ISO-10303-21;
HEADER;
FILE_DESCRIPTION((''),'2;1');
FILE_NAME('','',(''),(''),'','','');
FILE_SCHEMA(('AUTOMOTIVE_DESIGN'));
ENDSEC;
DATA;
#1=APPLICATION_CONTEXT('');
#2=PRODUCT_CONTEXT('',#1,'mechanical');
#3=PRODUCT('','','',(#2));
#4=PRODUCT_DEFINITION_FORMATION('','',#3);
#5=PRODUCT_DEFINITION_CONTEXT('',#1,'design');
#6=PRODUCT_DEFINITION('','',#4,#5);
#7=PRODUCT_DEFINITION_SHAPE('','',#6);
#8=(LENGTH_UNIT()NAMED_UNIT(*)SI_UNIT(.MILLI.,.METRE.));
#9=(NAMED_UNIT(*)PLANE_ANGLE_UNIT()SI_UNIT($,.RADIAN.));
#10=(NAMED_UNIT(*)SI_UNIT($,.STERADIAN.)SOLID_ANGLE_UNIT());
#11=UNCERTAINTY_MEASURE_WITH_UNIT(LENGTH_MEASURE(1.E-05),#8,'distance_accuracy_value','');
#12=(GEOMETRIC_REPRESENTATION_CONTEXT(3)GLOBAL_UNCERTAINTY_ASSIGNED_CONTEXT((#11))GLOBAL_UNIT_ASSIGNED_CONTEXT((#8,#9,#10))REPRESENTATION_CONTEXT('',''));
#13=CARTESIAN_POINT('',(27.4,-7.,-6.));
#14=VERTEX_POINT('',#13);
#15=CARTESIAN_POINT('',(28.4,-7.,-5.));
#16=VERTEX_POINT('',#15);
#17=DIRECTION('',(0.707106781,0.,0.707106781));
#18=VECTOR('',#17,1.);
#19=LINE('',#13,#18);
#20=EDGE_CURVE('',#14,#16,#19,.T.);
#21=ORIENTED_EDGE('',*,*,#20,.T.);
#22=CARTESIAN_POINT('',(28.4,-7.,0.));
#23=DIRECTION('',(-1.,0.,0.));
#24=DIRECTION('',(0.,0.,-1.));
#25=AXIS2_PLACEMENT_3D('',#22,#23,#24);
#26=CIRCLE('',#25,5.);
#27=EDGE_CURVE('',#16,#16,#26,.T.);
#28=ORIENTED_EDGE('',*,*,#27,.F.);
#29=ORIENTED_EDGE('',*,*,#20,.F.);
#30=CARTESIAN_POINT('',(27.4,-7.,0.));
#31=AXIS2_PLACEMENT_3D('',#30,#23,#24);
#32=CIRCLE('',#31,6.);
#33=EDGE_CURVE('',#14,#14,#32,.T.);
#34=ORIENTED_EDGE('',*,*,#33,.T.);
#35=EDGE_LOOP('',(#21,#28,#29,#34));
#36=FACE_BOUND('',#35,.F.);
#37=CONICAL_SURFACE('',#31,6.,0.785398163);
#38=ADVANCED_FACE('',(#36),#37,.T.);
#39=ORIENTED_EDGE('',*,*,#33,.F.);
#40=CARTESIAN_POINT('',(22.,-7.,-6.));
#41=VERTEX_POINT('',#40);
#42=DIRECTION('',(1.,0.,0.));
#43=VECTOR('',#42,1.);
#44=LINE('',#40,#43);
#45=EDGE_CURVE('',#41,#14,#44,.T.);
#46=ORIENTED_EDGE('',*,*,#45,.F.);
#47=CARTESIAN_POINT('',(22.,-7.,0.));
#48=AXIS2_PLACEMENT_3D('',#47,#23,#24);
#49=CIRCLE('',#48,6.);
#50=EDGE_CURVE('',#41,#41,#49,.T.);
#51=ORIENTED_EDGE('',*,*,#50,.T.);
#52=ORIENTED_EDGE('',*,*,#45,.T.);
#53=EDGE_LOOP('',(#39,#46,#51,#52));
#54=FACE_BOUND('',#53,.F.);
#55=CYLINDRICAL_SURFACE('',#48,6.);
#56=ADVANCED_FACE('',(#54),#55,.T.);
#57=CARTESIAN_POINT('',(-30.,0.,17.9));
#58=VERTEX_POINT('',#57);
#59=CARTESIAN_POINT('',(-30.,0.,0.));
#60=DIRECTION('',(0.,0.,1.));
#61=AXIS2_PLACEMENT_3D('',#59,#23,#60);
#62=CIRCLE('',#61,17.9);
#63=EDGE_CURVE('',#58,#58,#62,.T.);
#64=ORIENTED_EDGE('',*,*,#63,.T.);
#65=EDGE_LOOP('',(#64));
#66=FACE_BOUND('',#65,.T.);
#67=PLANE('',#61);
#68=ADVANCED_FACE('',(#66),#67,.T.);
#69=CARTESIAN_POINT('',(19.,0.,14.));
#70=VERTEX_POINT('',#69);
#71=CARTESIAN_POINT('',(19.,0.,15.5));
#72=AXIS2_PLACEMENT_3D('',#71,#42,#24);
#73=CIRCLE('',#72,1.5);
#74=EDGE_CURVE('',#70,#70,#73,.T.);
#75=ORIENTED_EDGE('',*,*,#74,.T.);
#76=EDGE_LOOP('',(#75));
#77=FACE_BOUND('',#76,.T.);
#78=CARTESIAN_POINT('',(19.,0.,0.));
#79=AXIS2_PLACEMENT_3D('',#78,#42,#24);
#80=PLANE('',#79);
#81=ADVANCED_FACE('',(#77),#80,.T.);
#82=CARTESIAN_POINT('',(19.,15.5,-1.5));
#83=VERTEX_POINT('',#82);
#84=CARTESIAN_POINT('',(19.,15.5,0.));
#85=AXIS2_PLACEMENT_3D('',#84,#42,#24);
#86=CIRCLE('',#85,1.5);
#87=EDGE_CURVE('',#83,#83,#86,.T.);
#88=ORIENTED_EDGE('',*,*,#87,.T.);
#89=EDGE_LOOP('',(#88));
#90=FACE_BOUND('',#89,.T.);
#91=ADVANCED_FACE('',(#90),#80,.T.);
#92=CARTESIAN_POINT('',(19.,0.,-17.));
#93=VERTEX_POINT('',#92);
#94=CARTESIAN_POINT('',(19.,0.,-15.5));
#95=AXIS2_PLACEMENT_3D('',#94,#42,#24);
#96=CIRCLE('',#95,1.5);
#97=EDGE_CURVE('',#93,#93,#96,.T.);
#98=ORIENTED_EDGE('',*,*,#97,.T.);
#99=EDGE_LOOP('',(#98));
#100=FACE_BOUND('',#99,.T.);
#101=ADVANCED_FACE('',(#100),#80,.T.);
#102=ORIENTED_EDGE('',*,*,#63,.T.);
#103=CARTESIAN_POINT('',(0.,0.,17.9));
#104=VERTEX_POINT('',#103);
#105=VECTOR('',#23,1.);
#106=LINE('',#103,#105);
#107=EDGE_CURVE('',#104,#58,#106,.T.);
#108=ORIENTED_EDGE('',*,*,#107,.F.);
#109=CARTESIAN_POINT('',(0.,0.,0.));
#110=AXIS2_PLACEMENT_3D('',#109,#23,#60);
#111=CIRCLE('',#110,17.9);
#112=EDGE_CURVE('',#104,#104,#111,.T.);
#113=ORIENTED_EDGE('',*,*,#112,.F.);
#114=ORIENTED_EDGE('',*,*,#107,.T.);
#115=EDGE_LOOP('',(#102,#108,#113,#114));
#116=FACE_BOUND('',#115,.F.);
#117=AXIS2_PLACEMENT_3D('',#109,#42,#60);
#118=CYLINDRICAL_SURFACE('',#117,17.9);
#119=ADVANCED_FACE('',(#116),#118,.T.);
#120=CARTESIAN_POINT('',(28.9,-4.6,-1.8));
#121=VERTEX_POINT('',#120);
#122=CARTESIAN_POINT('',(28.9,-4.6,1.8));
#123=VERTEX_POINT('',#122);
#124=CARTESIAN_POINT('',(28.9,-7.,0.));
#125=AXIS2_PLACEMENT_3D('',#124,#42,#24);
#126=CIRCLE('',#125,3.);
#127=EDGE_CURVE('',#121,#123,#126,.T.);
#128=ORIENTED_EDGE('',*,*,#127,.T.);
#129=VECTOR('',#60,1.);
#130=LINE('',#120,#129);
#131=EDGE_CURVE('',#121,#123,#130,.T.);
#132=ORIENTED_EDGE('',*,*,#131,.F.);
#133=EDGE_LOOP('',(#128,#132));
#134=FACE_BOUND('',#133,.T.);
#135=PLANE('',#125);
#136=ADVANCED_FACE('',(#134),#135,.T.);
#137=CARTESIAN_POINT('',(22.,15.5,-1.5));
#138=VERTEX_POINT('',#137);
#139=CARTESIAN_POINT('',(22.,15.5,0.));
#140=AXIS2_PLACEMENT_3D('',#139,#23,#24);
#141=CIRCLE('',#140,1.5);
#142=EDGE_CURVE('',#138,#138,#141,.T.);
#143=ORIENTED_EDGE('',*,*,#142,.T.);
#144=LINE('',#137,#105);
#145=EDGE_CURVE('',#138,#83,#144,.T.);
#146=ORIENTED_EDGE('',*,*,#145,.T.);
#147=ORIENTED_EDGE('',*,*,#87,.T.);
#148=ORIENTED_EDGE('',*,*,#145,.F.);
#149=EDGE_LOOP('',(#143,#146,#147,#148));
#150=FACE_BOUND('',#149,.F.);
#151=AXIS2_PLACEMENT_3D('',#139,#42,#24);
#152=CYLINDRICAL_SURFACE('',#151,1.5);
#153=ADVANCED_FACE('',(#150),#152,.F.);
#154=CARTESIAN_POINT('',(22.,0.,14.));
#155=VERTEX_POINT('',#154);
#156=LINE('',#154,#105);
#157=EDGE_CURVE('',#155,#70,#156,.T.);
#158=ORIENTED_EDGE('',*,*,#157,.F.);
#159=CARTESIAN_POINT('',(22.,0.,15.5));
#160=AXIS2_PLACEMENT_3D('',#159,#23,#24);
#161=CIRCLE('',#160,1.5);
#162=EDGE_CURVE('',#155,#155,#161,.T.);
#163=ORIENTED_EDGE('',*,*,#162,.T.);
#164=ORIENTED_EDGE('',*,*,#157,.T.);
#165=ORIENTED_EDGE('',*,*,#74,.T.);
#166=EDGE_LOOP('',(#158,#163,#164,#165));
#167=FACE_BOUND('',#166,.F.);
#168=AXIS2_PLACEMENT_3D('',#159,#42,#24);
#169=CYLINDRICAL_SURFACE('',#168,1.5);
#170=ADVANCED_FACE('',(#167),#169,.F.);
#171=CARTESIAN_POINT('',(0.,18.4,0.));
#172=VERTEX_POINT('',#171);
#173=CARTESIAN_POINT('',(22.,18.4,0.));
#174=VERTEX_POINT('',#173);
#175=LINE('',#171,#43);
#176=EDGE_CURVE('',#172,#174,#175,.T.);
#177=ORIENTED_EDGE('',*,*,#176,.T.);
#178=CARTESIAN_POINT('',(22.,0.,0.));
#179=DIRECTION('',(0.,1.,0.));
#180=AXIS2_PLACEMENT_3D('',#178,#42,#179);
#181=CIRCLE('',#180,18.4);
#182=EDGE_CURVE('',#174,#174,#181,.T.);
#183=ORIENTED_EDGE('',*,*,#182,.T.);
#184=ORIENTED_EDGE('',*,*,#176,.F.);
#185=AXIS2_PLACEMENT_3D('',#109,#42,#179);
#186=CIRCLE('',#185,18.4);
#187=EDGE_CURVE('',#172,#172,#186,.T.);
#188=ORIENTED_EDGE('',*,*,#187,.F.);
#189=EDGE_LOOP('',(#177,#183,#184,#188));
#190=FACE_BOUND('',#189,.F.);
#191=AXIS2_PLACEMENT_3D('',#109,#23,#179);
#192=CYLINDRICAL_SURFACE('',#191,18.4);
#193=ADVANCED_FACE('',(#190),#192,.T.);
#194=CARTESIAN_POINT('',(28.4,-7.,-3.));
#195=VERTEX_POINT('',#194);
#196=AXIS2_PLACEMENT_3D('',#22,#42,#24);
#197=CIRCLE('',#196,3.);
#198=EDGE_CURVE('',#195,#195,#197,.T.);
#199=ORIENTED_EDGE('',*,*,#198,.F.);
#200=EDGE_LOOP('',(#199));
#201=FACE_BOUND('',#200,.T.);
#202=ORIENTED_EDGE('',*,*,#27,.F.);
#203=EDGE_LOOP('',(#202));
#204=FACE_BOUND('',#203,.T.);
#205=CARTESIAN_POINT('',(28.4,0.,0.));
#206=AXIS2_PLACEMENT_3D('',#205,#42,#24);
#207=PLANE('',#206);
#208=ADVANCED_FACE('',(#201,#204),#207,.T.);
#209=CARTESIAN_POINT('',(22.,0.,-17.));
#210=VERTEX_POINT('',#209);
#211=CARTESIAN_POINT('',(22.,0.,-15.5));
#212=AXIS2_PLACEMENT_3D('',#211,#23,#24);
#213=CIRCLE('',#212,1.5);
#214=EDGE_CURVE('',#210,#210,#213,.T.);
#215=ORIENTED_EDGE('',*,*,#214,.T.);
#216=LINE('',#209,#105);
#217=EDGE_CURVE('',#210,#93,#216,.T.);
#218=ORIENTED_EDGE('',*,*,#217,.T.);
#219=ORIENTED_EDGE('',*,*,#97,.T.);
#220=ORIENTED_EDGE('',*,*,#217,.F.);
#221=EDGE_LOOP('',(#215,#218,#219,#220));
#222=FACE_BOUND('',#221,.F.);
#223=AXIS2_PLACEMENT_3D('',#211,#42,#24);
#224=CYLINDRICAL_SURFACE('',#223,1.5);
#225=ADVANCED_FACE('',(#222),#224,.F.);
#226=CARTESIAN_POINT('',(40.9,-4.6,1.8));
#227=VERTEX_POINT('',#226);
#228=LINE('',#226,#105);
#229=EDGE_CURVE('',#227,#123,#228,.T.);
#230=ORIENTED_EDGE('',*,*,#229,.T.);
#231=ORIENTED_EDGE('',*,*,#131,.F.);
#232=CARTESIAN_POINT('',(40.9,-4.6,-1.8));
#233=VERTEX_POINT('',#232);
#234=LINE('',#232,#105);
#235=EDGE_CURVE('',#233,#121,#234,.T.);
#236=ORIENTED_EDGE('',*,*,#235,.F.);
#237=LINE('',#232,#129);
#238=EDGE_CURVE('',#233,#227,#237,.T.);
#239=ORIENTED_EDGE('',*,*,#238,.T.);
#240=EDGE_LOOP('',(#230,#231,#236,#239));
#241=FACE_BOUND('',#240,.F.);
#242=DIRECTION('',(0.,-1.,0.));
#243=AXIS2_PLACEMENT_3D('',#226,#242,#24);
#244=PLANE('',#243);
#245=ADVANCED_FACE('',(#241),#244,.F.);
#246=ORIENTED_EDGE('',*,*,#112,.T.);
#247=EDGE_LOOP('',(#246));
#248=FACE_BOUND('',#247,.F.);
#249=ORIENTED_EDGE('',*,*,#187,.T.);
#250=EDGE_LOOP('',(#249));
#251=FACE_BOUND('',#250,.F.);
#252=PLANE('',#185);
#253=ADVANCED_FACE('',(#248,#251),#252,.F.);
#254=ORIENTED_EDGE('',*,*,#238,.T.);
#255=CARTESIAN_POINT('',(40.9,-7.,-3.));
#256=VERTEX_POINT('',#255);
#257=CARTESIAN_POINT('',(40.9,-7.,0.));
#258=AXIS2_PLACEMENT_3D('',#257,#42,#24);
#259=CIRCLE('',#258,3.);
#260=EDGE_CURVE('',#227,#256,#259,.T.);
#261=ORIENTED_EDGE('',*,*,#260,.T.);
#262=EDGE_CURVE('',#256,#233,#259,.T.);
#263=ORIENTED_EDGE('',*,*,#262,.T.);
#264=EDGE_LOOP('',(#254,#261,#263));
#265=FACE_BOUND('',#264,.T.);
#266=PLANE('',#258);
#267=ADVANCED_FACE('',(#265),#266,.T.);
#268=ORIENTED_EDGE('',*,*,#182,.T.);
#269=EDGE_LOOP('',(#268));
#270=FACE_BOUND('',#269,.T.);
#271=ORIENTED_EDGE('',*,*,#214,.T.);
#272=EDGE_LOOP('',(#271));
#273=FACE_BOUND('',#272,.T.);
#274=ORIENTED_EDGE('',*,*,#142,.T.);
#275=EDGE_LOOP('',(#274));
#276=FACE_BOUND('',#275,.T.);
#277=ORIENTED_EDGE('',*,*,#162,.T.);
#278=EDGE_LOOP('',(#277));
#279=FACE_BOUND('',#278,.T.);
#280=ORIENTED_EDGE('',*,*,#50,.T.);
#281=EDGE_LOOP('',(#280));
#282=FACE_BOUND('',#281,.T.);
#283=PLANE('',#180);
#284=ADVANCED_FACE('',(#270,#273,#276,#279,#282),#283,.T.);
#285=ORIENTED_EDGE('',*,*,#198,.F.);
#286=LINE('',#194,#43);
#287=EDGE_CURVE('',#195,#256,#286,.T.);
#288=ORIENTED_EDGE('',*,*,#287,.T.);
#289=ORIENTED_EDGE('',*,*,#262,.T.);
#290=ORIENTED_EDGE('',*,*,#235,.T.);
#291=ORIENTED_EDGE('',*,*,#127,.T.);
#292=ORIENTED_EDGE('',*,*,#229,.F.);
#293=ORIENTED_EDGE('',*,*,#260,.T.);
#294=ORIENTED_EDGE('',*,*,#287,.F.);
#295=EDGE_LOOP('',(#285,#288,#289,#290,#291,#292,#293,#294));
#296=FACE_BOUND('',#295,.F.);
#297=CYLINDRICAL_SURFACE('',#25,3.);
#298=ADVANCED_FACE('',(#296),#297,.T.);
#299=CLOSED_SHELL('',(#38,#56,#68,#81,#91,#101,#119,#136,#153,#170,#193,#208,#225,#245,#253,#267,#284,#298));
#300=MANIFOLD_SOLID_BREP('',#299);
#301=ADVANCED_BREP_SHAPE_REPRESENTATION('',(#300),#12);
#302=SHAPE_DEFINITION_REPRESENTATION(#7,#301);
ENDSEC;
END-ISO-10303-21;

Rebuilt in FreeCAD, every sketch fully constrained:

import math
import FreeCAD as App
import Part
import Sketcher
from FreeCAD import Vector
Q = App.Units.Quantity


def edges_at(feature, points):
    """Names of the edges that pass closest to the given points."""
    edges = feature.Shape.Edges
    near = lambda p: min(range(len(edges)), key=lambda i: edges[i].distToShape(Part.Vertex(*p))[0])
    return sorted({f"Edge{near(p) + 1}" for p in points})

doc = App.newDocument("Part")
body = doc.addObject("PartDesign::Body", "Body")

sketch1 = doc.addObject("Sketcher::SketchObject", "Sketch")
body.addObject(sketch1)
sketch1.AttachmentSupport = (doc.YZ_Plane, [""])
sketch1.MapMode = "FlatFace"
sketch1.addGeometry(Part.Circle(Vector(0, 0, 0), Vector(0, 0, 1), 18.4), False)
sketch1.addConstraint(Sketcher.Constraint("Coincident", 0, 3, -1, 1))
sketch1.addConstraint(Sketcher.Constraint("Diameter", 0, Q("36.8 mm")))
pad1 = doc.addObject("PartDesign::Pad", "Pad")
body.addObject(pad1)
pad1.Profile = sketch1
pad1.Length = 22

sketch2 = doc.addObject("Sketcher::SketchObject", "Sketch001")
body.addObject(sketch2)
sketch2.AttachmentSupport = (doc.YZ_Plane, [""])
sketch2.MapMode = "FlatFace"
sketch2.AttachmentOffset = App.Placement(Vector(0, 0, 22), App.Rotation())
sketch2.addGeometry(Part.Circle(Vector(-7, 0, 0), Vector(0, 0, 1), 6), False)
sketch2.addConstraint(Sketcher.Constraint("PointOnObject", 0, 3, -1))
sketch2.addConstraint(Sketcher.Constraint("Diameter", 0, Q("12 mm")))
sketch2.addConstraint(Sketcher.Constraint("DistanceX", 0, 3, -1, 1, Q("7 mm")))
pad2 = doc.addObject("PartDesign::Pad", "Pad001")
body.addObject(pad2)
pad2.Profile = sketch2
pad2.Length = 6.4
doc.recompute()

chamfer = doc.addObject("PartDesign::Chamfer", "Chamfer")
body.addObject(chamfer)
chamfer.Base = (pad2, edges_at(pad2, [(28.4, -7, 6)]))
chamfer.Size = 1

sketch3 = doc.addObject("Sketcher::SketchObject", "Sketch002")
body.addObject(sketch3)
sketch3.AttachmentSupport = (doc.YZ_Plane, [""])
sketch3.MapMode = "FlatFace"
sketch3.AttachmentOffset = App.Placement(Vector(0, 0, 28.4), App.Rotation())
sketch3.addGeometry(Part.Circle(Vector(-7, 0, 0), Vector(0, 0, 1), 3), False)
sketch3.addConstraint(Sketcher.Constraint("PointOnObject", 0, 3, -1))
sketch3.addConstraint(Sketcher.Constraint("Diameter", 0, Q("6 mm")))
sketch3.addConstraint(Sketcher.Constraint("DistanceX", 0, 3, -1, 1, Q("7 mm")))
pad3 = doc.addObject("PartDesign::Pad", "Pad002")
body.addObject(pad3)
pad3.Profile = sketch3
pad3.Length = 12.5

sketch4 = doc.addObject("Sketcher::SketchObject", "Sketch003")
body.addObject(sketch4)
sketch4.AttachmentSupport = (doc.YZ_Plane, [""])
sketch4.MapMode = "FlatFace"
sketch4.AttachmentOffset = App.Placement(Vector(0, 0, 40.9), App.Rotation())
sketch4.addGeometry(Part.LineSegment(Vector(-4.6, 1.8, 0), Vector(-4.6, -1.8, 0)), False)
sketch4.addGeometry(Part.ArcOfCircle(Part.Circle(Vector(-7, 0, 0), Vector(0, 0, 1), 3), math.radians(-36.869898), math.radians(36.869898)), False)
sketch4.addConstraint(Sketcher.Constraint("Coincident", 0, 1, 1, 2))
sketch4.addConstraint(Sketcher.Constraint("Coincident", 1, 1, 0, 2))
sketch4.addConstraint(Sketcher.Constraint("Vertical", 0))
sketch4.addConstraint(Sketcher.Constraint("PointOnObject", 1, 3, -1))
sketch4.addConstraint(Sketcher.Constraint("Radius", 1, Q("3 mm")))
sketch4.addConstraint(Sketcher.Constraint("DistanceY", 0, 2, 0, 1, Q("3.6 mm")))
sketch4.addConstraint(Sketcher.Constraint("DistanceX", 1, 3, -1, 1, Q("7 mm")))
pocket1 = doc.addObject("PartDesign::Pocket", "Pocket")
body.addObject(pocket1)
pocket1.Profile = sketch4
pocket1.Length = 12

sketch5 = doc.addObject("Sketcher::SketchObject", "Sketch004")
body.addObject(sketch5)
sketch5.AttachmentSupport = (doc.YZ_Plane, [""])
sketch5.MapMode = "FlatFace"
sketch5.addGeometry(Part.Circle(Vector(0, 0, 0), Vector(0, 0, 1), 17.9), False)
sketch5.addConstraint(Sketcher.Constraint("Coincident", 0, 3, -1, 1))
sketch5.addConstraint(Sketcher.Constraint("Diameter", 0, Q("35.8 mm")))
pad4 = doc.addObject("PartDesign::Pad", "Pad003")
body.addObject(pad4)
pad4.Profile = sketch5
pad4.Length = 30
pad4.Reversed = True

sketch6 = doc.addObject("Sketcher::SketchObject", "Sketch005")
body.addObject(sketch6)
sketch6.AttachmentSupport = (doc.YZ_Plane, [""])
sketch6.MapMode = "FlatFace"
sketch6.AttachmentOffset = App.Placement(Vector(0, 0, 22), App.Rotation())
sketch6.addGeometry(Part.Circle(Vector(0, -15.5, 0), Vector(0, 0, 1), 1.5), False)
sketch6.addGeometry(Part.Circle(Vector(15.5, 0, 0), Vector(0, 0, 1), 1.5), False)
sketch6.addGeometry(Part.Circle(Vector(0, 15.5, 0), Vector(0, 0, 1), 1.5), False)
sketch6.addConstraint(Sketcher.Constraint("Equal", 0, 1))
sketch6.addConstraint(Sketcher.Constraint("Equal", 1, 2))
sketch6.addConstraint(Sketcher.Constraint("Symmetric", 0, 3, 2, 3, -1, 1))
sketch6.addConstraint(Sketcher.Constraint("PointOnObject", 0, 3, -2))
sketch6.addConstraint(Sketcher.Constraint("PointOnObject", 1, 3, -1))
sketch6.addConstraint(Sketcher.Constraint("Diameter", 0, Q("3 mm")))
sketch6.addConstraint(Sketcher.Constraint("DistanceY", 0, 3, 2, 3, Q("31 mm")))
sketch6.addConstraint(Sketcher.Constraint("DistanceX", -1, 1, 1, 3, Q("15.5 mm")))
pocket2 = doc.addObject("PartDesign::Pocket", "Pocket001")
body.addObject(pocket2)
pocket2.Profile = sketch6
pocket2.Length = 3

doc.recompute()
